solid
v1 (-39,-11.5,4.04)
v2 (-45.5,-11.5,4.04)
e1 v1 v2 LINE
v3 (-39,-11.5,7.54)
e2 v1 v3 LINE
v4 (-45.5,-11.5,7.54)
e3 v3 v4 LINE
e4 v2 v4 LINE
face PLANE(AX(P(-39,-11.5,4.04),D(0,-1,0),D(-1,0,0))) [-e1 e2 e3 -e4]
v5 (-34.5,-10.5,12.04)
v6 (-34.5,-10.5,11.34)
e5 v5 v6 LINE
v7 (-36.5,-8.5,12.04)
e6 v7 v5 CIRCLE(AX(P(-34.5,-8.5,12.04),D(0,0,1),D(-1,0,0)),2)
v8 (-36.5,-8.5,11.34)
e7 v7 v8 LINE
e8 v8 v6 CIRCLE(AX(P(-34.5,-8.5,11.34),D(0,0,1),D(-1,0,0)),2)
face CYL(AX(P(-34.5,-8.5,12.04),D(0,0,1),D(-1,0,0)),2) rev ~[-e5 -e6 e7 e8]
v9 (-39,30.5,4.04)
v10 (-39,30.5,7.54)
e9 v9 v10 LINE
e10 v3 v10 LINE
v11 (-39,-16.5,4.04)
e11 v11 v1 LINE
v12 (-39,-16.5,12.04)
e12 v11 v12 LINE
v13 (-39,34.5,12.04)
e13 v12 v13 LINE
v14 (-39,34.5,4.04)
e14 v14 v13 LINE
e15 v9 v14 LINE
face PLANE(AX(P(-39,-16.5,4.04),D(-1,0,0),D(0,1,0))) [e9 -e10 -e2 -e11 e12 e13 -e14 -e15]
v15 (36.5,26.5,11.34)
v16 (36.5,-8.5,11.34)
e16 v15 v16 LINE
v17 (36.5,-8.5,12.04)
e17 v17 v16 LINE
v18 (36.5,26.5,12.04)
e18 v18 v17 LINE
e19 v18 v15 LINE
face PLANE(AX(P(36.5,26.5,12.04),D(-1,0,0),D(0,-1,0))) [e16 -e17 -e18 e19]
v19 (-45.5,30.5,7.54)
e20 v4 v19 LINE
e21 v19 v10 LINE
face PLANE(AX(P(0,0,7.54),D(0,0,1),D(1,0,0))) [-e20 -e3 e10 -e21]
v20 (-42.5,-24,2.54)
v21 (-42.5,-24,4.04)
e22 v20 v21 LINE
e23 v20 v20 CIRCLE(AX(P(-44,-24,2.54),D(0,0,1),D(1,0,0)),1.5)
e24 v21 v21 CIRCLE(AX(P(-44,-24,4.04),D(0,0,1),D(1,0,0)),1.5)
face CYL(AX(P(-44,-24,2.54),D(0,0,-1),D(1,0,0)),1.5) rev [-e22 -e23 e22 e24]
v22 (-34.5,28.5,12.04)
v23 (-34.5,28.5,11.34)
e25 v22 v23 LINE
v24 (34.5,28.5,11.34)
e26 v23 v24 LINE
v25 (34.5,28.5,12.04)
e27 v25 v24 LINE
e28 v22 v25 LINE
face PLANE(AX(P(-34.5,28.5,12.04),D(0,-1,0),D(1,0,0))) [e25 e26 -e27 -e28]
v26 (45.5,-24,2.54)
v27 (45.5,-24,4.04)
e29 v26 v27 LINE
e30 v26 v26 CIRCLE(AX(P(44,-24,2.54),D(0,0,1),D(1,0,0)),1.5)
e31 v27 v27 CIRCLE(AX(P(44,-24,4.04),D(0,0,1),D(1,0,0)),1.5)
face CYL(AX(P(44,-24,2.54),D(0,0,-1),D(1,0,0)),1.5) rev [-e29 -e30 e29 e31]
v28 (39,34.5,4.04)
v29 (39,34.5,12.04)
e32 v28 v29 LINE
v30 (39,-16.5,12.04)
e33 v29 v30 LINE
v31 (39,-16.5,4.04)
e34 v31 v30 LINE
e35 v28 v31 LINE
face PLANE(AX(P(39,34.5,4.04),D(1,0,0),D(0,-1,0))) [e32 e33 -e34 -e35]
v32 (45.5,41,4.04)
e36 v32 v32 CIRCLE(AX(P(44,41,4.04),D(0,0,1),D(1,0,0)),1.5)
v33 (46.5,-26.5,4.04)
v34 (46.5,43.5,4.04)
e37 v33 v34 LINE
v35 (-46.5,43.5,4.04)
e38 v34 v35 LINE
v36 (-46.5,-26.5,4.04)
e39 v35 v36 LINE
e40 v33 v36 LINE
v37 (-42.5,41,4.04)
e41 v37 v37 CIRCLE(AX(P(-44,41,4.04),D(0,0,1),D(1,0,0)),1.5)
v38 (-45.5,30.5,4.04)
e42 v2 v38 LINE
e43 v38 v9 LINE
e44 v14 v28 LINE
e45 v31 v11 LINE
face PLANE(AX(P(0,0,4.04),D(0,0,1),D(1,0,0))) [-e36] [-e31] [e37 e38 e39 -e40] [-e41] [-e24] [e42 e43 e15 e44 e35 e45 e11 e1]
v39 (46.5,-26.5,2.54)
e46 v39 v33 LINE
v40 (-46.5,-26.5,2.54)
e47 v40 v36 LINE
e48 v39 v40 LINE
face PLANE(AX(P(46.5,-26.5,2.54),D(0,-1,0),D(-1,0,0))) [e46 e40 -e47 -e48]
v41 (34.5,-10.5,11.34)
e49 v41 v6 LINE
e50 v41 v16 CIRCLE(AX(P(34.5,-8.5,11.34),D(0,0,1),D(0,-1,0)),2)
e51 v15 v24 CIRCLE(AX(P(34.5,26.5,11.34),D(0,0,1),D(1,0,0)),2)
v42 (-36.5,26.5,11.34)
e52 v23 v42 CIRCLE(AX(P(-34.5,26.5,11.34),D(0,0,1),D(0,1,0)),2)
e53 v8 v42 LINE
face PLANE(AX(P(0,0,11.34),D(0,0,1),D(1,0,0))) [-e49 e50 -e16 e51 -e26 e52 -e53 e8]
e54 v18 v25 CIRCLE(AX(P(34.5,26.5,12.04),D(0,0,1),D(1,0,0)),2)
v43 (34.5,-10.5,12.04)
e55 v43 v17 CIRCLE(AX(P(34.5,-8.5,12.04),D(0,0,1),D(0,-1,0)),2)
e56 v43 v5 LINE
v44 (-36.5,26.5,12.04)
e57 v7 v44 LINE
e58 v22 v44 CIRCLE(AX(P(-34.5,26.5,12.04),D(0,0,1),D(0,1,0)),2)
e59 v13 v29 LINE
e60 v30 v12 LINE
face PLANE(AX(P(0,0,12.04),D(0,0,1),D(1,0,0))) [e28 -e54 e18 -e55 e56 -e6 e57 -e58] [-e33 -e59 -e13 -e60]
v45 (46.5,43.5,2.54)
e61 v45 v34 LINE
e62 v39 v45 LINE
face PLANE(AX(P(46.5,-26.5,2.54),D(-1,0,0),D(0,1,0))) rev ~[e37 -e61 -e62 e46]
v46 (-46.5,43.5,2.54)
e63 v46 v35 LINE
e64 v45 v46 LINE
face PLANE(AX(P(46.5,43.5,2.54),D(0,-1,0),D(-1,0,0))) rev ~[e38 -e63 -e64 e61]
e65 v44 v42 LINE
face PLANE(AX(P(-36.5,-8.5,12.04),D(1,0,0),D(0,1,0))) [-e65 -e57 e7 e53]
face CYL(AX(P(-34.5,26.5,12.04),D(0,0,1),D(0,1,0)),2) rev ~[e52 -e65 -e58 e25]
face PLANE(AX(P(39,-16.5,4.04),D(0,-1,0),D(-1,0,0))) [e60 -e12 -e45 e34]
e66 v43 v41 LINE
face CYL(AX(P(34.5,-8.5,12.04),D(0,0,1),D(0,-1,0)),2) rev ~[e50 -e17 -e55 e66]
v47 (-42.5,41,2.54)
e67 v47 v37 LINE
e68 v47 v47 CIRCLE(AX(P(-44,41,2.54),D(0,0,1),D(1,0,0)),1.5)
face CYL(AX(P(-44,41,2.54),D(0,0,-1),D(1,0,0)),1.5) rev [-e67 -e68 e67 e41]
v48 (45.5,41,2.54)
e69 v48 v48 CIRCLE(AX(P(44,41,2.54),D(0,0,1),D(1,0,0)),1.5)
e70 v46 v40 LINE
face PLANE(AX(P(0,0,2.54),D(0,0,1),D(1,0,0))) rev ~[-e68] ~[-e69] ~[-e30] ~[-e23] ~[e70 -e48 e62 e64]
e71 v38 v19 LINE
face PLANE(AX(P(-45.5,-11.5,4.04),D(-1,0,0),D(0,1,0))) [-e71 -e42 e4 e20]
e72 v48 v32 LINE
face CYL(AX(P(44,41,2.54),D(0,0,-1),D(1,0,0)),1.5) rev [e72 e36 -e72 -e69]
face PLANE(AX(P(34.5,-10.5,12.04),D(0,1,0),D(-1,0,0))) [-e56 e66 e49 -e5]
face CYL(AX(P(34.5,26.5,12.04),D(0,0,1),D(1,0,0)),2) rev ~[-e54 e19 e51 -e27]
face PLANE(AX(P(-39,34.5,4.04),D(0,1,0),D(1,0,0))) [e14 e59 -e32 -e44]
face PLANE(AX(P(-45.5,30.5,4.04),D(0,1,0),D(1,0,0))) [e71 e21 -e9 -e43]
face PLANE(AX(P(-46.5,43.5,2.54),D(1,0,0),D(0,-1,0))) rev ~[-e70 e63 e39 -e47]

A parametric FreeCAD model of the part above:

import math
import FreeCAD as App
import Part
import Sketcher
Q = App.Units.Quantity


def add_polygon(sketch, points):
    """Adds a closed chain of lines whose ends are joined by coincident constraints."""
    first, n = sketch.GeometryCount, len(points)
    for a, b in zip(points, points[1:] + points[:1]):
        sketch.addGeometry(Part.LineSegment(App.Vector(*a, 0), App.Vector(*b, 0)), False)
    for i in range(n):
        sketch.addConstraint(Sketcher.Constraint("Coincident", first + i, 2, first + (i + 1) % n, 1))

doc = App.newDocument("Part")
body = doc.addObject("PartDesign::Body", "Body")

# Sketch on XY plane
sketch1 = body.newObject("Sketcher::SketchObject", "Sketch")
sketch1.AttachmentSupport = (doc.getObject("XY_Plane"), [""])
sketch1.MapMode = "FlatFace"
sketch1.AttachmentOffset = App.Placement(App.Vector(0, 0, 2.54), App.Rotation())
add_polygon(sketch1, [(46.5, -26.5), (46.5, 43.5), (-46.5, 43.5), (-46.5, -26.5)])  # lines 0-3
sketch1.addGeometry(Part.Circle(App.Vector(-44, -24, 0), App.Vector(0, 0, 1), 1.5), False)  # 4
sketch1.addGeometry(Part.Circle(App.Vector(44, -24, 0), App.Vector(0, 0, 1), 1.5), False)  # 5
sketch1.addGeometry(Part.Circle(App.Vector(-44, 41, 0), App.Vector(0, 0, 1), 1.5), False)  # 6
sketch1.addGeometry(Part.Circle(App.Vector(44, 41, 0), App.Vector(0, 0, 1), 1.5), False)  # 7
sketch1.addConstraint([
    Sketcher.Constraint("Vertical", 0),
    Sketcher.Constraint("Horizontal", 1),
    Sketcher.Constraint("Vertical", 2),
    Sketcher.Constraint("Horizontal", 3),
    Sketcher.Constraint("Equal", 4, 5),
    Sketcher.Constraint("Equal", 5, 6),
    Sketcher.Constraint("Equal", 6, 7),
    Sketcher.Constraint("Symmetric", 4, 3, 5, 3, -2),
    Sketcher.Constraint("Symmetric", 6, 3, 7, 3, -2),
    Sketcher.Constraint("Vertical", 4, 3, 6, 3),
    Sketcher.Constraint("Diameter", 4, Q("3 mm")),
    Sketcher.Constraint("DistanceY", 0, 1, 0, 2, Q("70 mm")),
    Sketcher.Constraint("DistanceY", 4, 3, 6, 3, Q("65 mm")),
    Sketcher.Constraint("DistanceX", 1, 2, 1, 1, Q("93 mm")),
    Sketcher.Constraint("DistanceX", 4, 3, -1, 1, Q("44 mm")),
    Sketcher.Constraint("DistanceY", 4, 3, -1, 1, Q("24 mm")),
    Sketcher.Constraint("DistanceX", -1, 1, 0, 2, Q("46.5 mm")),
    Sketcher.Constraint("DistanceY", -1, 1, 0, 2, Q("43.5 mm")),
])
pad1 = body.newObject("PartDesign::Pad", "Pad")
pad1.Profile = sketch1
pad1.Length = 1.5

# Sketch on XY plane
sketch2 = body.newObject("Sketcher::SketchObject", "Sketch001")
sketch2.AttachmentSupport = (doc.getObject("XY_Plane"), [""])
sketch2.MapMode = "FlatFace"
sketch2.AttachmentOffset = App.Placement(App.Vector(0, 0, 4.04), App.Rotation())
add_polygon(sketch2, [(39, 34.5), (-39, 34.5), (-39, -16.5), (39, -16.5)])  # lines 0-3
sketch2.addConstraint([
    Sketcher.Constraint("Horizontal", 0),
    Sketcher.Constraint("Vertical", 1),
    Sketcher.Constraint("Horizontal", 2),
    Sketcher.Constraint("Vertical", 3),
    Sketcher.Constraint("DistanceX", 0, 2, 0, 1, Q("78 mm")),
    Sketcher.Constraint("DistanceY", 1, 2, 1, 1, Q("51 mm")),
    Sketcher.Constraint("DistanceX", 0, 2, -1, 1, Q("39 mm")),
    Sketcher.Constraint("DistanceY", -1, 1, 0, 2, Q("34.5 mm")),
])
pad2 = body.newObject("PartDesign::Pad", "Pad001")
pad2.Profile = sketch2
pad2.Length = 8

# Sketch on XY plane
sketch3 = body.newObject("Sketcher::SketchObject", "Sketch002")
sketch3.AttachmentSupport = (doc.getObject("XY_Plane"), [""])
sketch3.MapMode = "FlatFace"
sketch3.AttachmentOffset = App.Placement(App.Vector(0, 0, 12.04), App.Rotation())
sketch3.addGeometry([
    Part.LineSegment(App.Vector(34.5, 28.5, 0), App.Vector(-34.5, 28.5, 0)),  # 0
    Part.ArcOfCircle(Part.Circle(App.Vector(-34.5, 26.5, 0), App.Vector(0, 0, 1), 2), math.radians(90), math.radians(180)),  # 1
    Part.LineSegment(App.Vector(-36.5, 26.5, 0), App.Vector(-36.5, -8.5, 0)),  # 2
    Part.ArcOfCircle(Part.Circle(App.Vector(-34.5, -8.5, 0), App.Vector(0, 0, 1), 2), math.radians(180), math.radians(270)),  # 3
    Part.LineSegment(App.Vector(-34.5, -10.5, 0), App.Vector(34.5, -10.5, 0)),  # 4
    Part.ArcOfCircle(Part.Circle(App.Vector(34.5, -8.5, 0), App.Vector(0, 0, 1), 2), math.radians(-90), math.radians(0)),  # 5
    Part.LineSegment(App.Vector(36.5, -8.5, 0), App.Vector(36.5, 26.5, 0)),  # 6
    Part.ArcOfCircle(Part.Circle(App.Vector(34.5, 26.5, 0), App.Vector(0, 0, 1), 2), math.radians(0), math.radians(90)),  # 7
], False)
sketch3.addConstraint([
    Sketcher.Constraint("Tangent", 0, 2, 1, 1),
    Sketcher.Constraint("Tangent", 1, 2, 2, 1),
    Sketcher.Constraint("Tangent", 2, 2, 3, 1),
    Sketcher.Constraint("Tangent", 3, 2, 4, 1),
    Sketcher.Constraint("Tangent", 4, 2, 5, 1),
    Sketcher.Constraint("Tangent", 5, 2, 6, 1),
    Sketcher.Constraint("Tangent", 6, 2, 7, 1),
    Sketcher.Constraint("Tangent", 7, 2, 0, 1),
    Sketcher.Constraint("Horizontal", 0),
    Sketcher.Constraint("Vertical", 2),
    Sketcher.Constraint("Horizontal", 4),
    Sketcher.Constraint("Vertical", 6),
    Sketcher.Constraint("Equal", 1, 3),
    Sketcher.Constraint("Equal", 3, 5),
    Sketcher.Constraint("Equal", 5, 7),
    Sketcher.Constraint("Radius", 1, Q("2 mm")),
    Sketcher.Constraint("DistanceX", 0, 2, 0, 1, Q("69 mm")),
    Sketcher.Constraint("DistanceY", 2, 2, 2, 1, Q("35 mm")),
    Sketcher.Constraint("DistanceX", 1, 3, -1, 1, Q("34.5 mm")),
    Sketcher.Constraint("DistanceY", -1, 1, 1, 3, Q("26.5 mm")),
])
pocket1 = body.newObject("PartDesign::Pocket", "Pocket")
pocket1.Profile = sketch3
pocket1.Length = 0.7

# Sketch on XY plane
sketch4 = body.newObject("Sketcher::SketchObject", "Sketch003")
sketch4.AttachmentSupport = (doc.getObject("XY_Plane"), [""])
sketch4.MapMode = "FlatFace"
sketch4.AttachmentOffset = App.Placement(App.Vector(0, 0, 4.04), App.Rotation())
add_polygon(sketch4, [(-45.5, -11.5), (-39, -11.5), (-39, 30.5), (-45.5, 30.5)])  # lines 0-3
sketch4.addConstraint([
    Sketcher.Constraint("Horizontal", 0),
    Sketcher.Constraint("Vertical", 1),
    Sketcher.Constraint("Horizontal", 2),
    Sketcher.Constraint("Vertical", 3),
    Sketcher.Constraint("DistanceY", 1, 1, 1, 2, Q("42 mm")),
    Sketcher.Constraint("DistanceX", 0, 1, 0, 2, Q("6.5 mm")),
    Sketcher.Constraint("DistanceX", 0, 2, -1, 1, Q("39 mm")),
    Sketcher.Constraint("DistanceY", 0, 2, -1, 1, Q("11.5 mm")),
])
pad3 = body.newObject("PartDesign::Pad", "Pad002")
pad3.Profile = sketch4
pad3.Length = 3.5

doc.recompute()
